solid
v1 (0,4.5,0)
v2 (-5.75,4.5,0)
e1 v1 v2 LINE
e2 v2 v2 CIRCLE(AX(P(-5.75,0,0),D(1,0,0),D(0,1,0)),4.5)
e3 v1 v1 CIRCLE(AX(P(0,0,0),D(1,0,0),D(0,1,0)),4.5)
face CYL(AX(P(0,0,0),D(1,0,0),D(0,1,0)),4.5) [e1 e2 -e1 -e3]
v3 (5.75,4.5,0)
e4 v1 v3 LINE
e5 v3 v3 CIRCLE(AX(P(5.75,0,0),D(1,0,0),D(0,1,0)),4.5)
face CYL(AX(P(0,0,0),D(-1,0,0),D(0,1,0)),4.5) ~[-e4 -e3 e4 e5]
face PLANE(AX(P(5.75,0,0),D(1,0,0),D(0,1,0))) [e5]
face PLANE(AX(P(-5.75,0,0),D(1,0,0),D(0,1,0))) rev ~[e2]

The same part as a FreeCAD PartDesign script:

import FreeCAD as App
import Part
import Sketcher
from FreeCAD import Vector
Q = App.Units.Quantity

doc = App.newDocument("Part")
body = doc.addObject("PartDesign::Body", "Body")

sketch1 = body.newObject("Sketcher::SketchObject", "Sketch")
sketch1.AttachmentSupport = (doc.getObject("YZ_Plane"), [""])
sketch1.MapMode = "FlatFace"
sketch1.addGeometry(Part.Circle(Vector(0, 0, 0), Vector(0, 0, 1), 4.5), False)
sketch1.addConstraint([
    Sketcher.Constraint("Coincident", 0, 3, -1, 1),
    Sketcher.Constraint("Diameter", 0, Q("9 mm")),
])
pad1 = body.newObject("PartDesign::Pad", "Pad")
pad1.Profile = sketch1
pad1.Length = 11.5
pad1.Midplane = True

doc.recompute()
